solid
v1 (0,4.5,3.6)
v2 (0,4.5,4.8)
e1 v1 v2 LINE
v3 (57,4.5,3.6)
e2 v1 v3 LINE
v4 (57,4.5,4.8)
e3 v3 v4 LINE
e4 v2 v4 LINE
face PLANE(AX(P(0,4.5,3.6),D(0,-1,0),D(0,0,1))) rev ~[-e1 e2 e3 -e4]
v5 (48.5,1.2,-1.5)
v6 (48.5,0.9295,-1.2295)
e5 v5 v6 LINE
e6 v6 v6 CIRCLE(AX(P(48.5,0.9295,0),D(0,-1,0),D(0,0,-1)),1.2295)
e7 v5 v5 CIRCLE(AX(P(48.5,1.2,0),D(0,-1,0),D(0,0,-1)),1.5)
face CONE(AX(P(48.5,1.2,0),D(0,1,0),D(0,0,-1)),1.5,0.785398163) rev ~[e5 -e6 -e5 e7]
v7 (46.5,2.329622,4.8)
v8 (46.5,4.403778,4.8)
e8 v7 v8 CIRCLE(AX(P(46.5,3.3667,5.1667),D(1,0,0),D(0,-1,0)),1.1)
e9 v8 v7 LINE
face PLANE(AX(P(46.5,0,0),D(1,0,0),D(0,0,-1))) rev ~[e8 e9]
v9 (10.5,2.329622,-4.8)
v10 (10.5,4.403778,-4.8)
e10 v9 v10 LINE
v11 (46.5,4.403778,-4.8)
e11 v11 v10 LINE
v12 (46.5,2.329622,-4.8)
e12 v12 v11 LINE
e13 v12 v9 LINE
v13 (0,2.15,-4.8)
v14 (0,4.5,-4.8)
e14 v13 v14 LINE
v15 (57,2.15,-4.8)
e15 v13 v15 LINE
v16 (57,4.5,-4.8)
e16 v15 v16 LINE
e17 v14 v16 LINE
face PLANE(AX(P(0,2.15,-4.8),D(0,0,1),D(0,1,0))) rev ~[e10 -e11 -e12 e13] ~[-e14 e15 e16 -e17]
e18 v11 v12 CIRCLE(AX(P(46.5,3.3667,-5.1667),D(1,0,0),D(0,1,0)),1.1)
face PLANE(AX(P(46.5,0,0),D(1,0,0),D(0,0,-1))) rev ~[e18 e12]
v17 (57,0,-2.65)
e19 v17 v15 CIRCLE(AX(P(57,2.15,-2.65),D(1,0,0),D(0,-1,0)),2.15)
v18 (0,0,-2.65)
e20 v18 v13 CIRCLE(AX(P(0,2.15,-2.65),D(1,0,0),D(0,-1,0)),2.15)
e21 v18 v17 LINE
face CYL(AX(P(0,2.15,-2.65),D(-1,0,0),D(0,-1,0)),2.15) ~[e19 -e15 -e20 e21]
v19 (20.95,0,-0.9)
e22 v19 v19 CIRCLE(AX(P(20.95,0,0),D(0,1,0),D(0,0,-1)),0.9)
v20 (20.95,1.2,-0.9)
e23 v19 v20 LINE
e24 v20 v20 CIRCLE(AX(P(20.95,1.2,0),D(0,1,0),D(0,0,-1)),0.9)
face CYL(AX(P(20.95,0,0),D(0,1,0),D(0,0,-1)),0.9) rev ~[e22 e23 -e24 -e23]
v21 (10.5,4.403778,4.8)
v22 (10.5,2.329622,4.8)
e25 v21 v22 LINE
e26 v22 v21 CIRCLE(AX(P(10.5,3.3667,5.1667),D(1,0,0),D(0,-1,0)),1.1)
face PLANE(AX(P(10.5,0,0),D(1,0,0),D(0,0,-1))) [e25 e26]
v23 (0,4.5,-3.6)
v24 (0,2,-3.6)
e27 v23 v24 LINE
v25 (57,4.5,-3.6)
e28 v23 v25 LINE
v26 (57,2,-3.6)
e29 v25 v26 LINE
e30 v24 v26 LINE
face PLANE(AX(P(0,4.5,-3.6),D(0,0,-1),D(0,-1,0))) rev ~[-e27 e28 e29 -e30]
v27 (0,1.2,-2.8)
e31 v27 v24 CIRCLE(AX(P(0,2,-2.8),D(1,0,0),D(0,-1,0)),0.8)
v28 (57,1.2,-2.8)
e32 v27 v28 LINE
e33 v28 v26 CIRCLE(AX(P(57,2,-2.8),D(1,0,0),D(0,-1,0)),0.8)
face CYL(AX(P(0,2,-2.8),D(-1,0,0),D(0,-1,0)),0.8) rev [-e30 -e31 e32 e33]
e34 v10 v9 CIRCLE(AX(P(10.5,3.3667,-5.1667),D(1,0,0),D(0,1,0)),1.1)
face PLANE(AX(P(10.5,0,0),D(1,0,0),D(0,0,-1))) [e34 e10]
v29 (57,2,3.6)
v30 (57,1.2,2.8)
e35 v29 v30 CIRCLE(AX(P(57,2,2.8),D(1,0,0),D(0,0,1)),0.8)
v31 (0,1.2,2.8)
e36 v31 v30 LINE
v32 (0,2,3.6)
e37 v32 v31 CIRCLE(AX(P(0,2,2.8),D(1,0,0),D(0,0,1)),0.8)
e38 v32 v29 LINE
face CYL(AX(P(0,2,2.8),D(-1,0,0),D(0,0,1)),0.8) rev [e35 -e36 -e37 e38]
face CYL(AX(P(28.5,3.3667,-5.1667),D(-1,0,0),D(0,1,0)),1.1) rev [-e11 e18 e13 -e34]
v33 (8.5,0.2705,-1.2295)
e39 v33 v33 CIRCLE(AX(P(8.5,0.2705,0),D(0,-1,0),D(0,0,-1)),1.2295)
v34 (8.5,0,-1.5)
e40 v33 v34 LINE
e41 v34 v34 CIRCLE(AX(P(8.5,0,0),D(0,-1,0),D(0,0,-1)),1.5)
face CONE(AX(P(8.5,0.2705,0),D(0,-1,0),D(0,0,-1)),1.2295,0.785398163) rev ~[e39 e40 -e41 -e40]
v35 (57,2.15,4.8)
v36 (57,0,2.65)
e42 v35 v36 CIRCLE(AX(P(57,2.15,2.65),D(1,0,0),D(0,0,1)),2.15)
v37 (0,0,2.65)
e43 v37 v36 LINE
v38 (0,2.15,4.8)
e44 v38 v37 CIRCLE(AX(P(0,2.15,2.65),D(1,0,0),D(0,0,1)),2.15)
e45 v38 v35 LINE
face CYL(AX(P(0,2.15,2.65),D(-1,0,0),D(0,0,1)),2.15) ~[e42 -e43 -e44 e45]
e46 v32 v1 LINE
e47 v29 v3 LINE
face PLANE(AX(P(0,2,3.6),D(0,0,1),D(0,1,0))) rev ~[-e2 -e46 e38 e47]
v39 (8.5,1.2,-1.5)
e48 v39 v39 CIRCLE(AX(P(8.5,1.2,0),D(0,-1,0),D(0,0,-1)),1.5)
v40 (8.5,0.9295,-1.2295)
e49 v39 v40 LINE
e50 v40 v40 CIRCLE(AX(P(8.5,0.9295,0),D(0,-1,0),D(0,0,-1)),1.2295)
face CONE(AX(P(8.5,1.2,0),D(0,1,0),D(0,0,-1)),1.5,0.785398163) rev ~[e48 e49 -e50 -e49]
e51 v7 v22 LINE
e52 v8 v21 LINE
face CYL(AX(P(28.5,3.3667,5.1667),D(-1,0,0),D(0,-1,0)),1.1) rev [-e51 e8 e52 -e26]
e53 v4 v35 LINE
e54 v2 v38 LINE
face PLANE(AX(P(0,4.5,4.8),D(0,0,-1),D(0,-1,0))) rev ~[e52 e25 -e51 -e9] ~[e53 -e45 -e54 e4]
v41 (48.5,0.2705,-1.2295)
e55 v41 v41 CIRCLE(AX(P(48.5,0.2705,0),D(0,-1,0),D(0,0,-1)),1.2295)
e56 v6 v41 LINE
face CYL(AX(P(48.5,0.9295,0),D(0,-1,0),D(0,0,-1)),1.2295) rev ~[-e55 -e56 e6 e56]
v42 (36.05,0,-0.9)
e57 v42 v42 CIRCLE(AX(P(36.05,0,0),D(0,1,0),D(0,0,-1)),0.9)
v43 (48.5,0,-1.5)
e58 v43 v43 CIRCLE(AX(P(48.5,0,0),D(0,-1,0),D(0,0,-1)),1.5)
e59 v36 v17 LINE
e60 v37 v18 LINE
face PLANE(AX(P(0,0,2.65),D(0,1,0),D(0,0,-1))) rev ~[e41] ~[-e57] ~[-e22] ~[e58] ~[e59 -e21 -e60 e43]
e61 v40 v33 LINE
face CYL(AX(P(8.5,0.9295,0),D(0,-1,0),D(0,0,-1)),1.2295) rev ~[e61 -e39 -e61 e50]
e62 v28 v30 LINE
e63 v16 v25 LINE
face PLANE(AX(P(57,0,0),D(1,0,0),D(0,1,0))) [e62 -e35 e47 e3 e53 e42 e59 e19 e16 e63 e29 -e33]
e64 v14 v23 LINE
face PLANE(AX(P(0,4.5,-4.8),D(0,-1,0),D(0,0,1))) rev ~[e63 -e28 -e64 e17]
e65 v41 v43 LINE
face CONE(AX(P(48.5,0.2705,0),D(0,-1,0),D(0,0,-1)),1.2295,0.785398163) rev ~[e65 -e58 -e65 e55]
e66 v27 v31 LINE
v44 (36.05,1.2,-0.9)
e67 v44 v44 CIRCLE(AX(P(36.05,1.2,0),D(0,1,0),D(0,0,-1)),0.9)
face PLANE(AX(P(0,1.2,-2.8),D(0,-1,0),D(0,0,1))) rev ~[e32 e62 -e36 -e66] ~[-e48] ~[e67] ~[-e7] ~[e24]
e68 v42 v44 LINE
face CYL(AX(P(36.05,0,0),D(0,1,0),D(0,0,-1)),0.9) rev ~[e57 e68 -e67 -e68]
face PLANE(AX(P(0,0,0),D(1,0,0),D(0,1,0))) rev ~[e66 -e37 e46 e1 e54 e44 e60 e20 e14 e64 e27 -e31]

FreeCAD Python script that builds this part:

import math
import FreeCAD as App
import Part
import Sketcher
from FreeCAD import Vector


def add_polygon(sketch, points):
    """Adds a closed chain of lines whose ends are joined by coincident constraints."""
    first, n = sketch.GeometryCount, len(points)
    for a, b in zip(points, points[1:] + points[:1]):
        sketch.addGeometry(Part.LineSegment(App.Vector(*a, 0), App.Vector(*b, 0)), False)
    for i in range(n):
        sketch.addConstraint(Sketcher.Constraint("Coincident", first + i, 2, first + (i + 1) % n, 1))

doc = App.newDocument("Part")
params = doc.addObject("Spreadsheet::Sheet", "Params")
for row, (alias, value) in enumerate([
    ("sketch1_radius", "0.8 mm"),
    ("sketch1_radius2", "2.15 mm"),
    ("sketch1_width", "2.5 mm"),
    ("sketch1_height", "1.2 mm"),
    ("sketch1_height2", "5.3 mm"),
    ("pad1_length", "57 mm"),
    ("sketch2_width", "1.2 mm"),
    ("sketch2_height", "1.5 mm"),
    ("groove_angle", "360 deg"),
    ("sketch3_width", "1.2 mm"),
    ("sketch3_height", "1.5 mm"),
    ("groove2_angle", "360 deg"),
    ("sketch4_diameter", "1.8 mm"),
    ("hole_diameter", "1.8 mm"),
    ("hole_depth", "1.2 mm"),
    ("sketch5_diameter", "1.8 mm"),
    ("hole2_diameter", "1.8 mm"),
    ("hole2_depth", "1.2 mm"),
    ("sketch6_radius", "1.1 mm"),
    ("pocket1_length", "36 mm"),
    ("sketch7_radius", "1.1 mm"),
    ("pocket2_length", "36 mm"),
], start=1):
    params.set(f"A{row}", alias)
    params.set(f"B{row}", "=" + value)
    params.setAlias(f"B{row}", alias)

body = doc.addObject("PartDesign::Body", "Body")

# Sketch on YZ plane
sketch1 = doc.addObject("Sketcher::SketchObject", "Sketch")
body.addObject(sketch1)
sketch1.AttachmentSupport = (doc.YZ_Plane, [""])
sketch1.MapMode = "FlatFace"
sketch1.addGeometry([
    Part.LineSegment(Vector(4.5, 3.6, 0), Vector(4.5, 4.8, 0)),  # 0
    Part.LineSegment(Vector(4.5, 4.8, 0), Vector(2.15, 4.8, 0)),  # 1
    Part.ArcOfCircle(Part.Circle(Vector(2.15, 2.65, 0), Vector(0, 0, 1), 2.15), math.radians(90), math.radians(180)),  # 2
    Part.LineSegment(Vector(0, 2.65, 0), Vector(0, -2.65, 0)),  # 3
    Part.ArcOfCircle(Part.Circle(Vector(2.15, -2.65, 0), Vector(0, 0, 1), 2.15), math.radians(180), math.radians(270)),  # 4
    Part.LineSegment(Vector(2.15, -4.8, 0), Vector(4.5, -4.8, 0)),  # 5
    Part.LineSegment(Vector(4.5, -4.8, 0), Vector(4.5, -3.6, 0)),  # 6
    Part.LineSegment(Vector(4.5, -3.6, 0), Vector(2, -3.6, 0)),  # 7
    Part.ArcOfCircle(Part.Circle(Vector(2, -2.8, 0), Vector(0, 0, 1), 0.8), math.radians(180), math.radians(270)),  # 8
    Part.LineSegment(Vector(1.2, -2.8, 0), Vector(1.2, 2.8, 0)),  # 9
    Part.ArcOfCircle(Part.Circle(Vector(2, 2.8, 0), Vector(0, 0, 1), 0.8), math.radians(90), math.radians(180)),  # 10
    Part.LineSegment(Vector(2, 3.6, 0), Vector(4.5, 3.6, 0)),  # 11
], False)
sketch1.addConstraint([
    Sketcher.Constraint("Coincident", 0, 2, 1, 1),
    Sketcher.Constraint("Tangent", 1, 2, 2, 1),
    Sketcher.Constraint("Tangent", 2, 2, 3, 1),
    Sketcher.Constraint("Tangent", 3, 2, 4, 1),
    Sketcher.Constraint("Tangent", 4, 2, 5, 1),
    Sketcher.Constraint("Coincident", 5, 2, 6, 1),
    Sketcher.Constraint("Coincident", 6, 2, 7, 1),
    Sketcher.Constraint("Tangent", 7, 2, 8, 2),
    Sketcher.Constraint("Tangent", 8, 1, 9, 1),
    Sketcher.Constraint("Tangent", 9, 2, 10, 2),
    Sketcher.Constraint("Tangent", 10, 1, 11, 1),
    Sketcher.Constraint("Coincident", 11, 2, 0, 1),
    Sketcher.Constraint("Vertical", 0),
    Sketcher.Constraint("Horizontal", 1),
    Sketcher.Constraint("Vertical", 3),
    Sketcher.Constraint("Horizontal", 5),
    Sketcher.Constraint("Vertical", 6),
    Sketcher.Constraint("Horizontal", 7),
    Sketcher.Constraint("Vertical", 9),
    Sketcher.Constraint("Horizontal", 11),
    Sketcher.Constraint("Equal", 2, 4),
    Sketcher.Constraint("Equal", 8, 10),
    Sketcher.Constraint("Symmetric", 2, 2, 3, 2, -1, 1),
    Sketcher.Constraint("Symmetric", 6, 2, 11, 2, -1),
    Sketcher.Constraint("Radius", 8, 0.8),
    Sketcher.Constraint("Radius", 2, 2.15),
    Sketcher.Constraint("DistanceX", 7, 2, 7, 1, 2.5),
    Sketcher.Constraint("DistanceY", 0, 1, 0, 2, 1.2),
    Sketcher.Constraint("DistanceY", 3, 2, 3, 1, 5.3),
    Sketcher.Constraint("DistanceX", -1, 1, 8, 3, 2.0),
])
sketch1.setExpression("Constraints[24]", "Params.sketch1_radius")
sketch1.setExpression("Constraints[25]", "Params.sketch1_radius2")
sketch1.setExpression("Constraints[26]", "Params.sketch1_width")
sketch1.setExpression("Constraints[27]", "Params.sketch1_height")
sketch1.setExpression("Constraints[28]", "Params.sketch1_height2")
pad1 = doc.addObject("PartDesign::Pad", "Pad")
body.addObject(pad1)
pad1.Profile = sketch1
pad1.setExpression("Length", "Params.pad1_length")

# Sketch on YZ plane
sketch2 = doc.addObject("Sketcher::SketchObject", "Sketch001")
body.addObject(sketch2)
sketch2.AttachmentSupport = (doc.YZ_Plane, [""])
sketch2.MapMode = "FlatFace"
sketch2.AttachmentOffset = App.Placement(Vector(0, 0, 8.5), App.Rotation())
add_polygon(sketch2, [(1.2, 0), (0, 0), (0, -1.5), (0.2705, -1.2295), (0.9295, -1.2295), (1.2, -1.5)])  # lines 0-5
sketch2.addConstraint([
    Sketcher.Constraint("Horizontal", 0),
    Sketcher.Constraint("Vertical", 1),
    Sketcher.Constraint("Horizontal", 3),
    Sketcher.Constraint("Vertical", 5),
    Sketcher.Constraint("Coincident", 0, 2, -1, 1),
    Sketcher.Constraint("Perpendicular", 2, 4),
    Sketcher.Constraint("Horizontal", 1, 2, 4, 2),
    Sketcher.Constraint("Equal", 2, 4),
    Sketcher.Constraint("DistanceX", 0, 2, 0, 1, 1.2),
    Sketcher.Constraint("DistanceY", 1, 2, 1, 1, 1.5),
    Sketcher.Constraint("DistanceX", 3, 1, 3, 2, 0.659),
])
sketch2.setExpression("Constraints[14]", "Params.sketch2_width")
sketch2.setExpression("Constraints[15]", "Params.sketch2_height")
groove = doc.addObject("PartDesign::Groove", "Groove")
body.addObject(groove)
groove.Profile = sketch2
groove.ReferenceAxis = (sketch2, ["H_Axis"])
groove.setExpression("Angle", "Params.groove_angle")

# Sketch on YZ plane
sketch3 = doc.addObject("Sketcher::SketchObject", "Sketch002")
body.addObject(sketch3)
sketch3.AttachmentSupport = (doc.YZ_Plane, [""])
sketch3.MapMode = "FlatFace"
sketch3.AttachmentOffset = App.Placement(Vector(0, 0, 48.5), App.Rotation())
add_polygon(sketch3, [(1.2, 0), (0, 0), (0, -1.5), (0.2705, -1.2295), (0.9295, -1.2295), (1.2, -1.5)])  # lines 0-5
sketch3.addConstraint([
    Sketcher.Constraint("Horizontal", 0),
    Sketcher.Constraint("Vertical", 1),
    Sketcher.Constraint("Horizontal", 3),
    Sketcher.Constraint("Vertical", 5),
    Sketcher.Constraint("Coincident", 0, 2, -1, 1),
    Sketcher.Constraint("Perpendicular", 2, 4),
    Sketcher.Constraint("Horizontal", 1, 2, 4, 2),
    Sketcher.Constraint("Equal", 2, 4),
    Sketcher.Constraint("DistanceX", 0, 2, 0, 1, 1.2),
    Sketcher.Constraint("DistanceY", 1, 2, 1, 1, 1.5),
    Sketcher.Constraint("DistanceX", 3, 1, 3, 2, 0.659),
])
sketch3.setExpression("Constraints[14]", "Params.sketch3_width")
sketch3.setExpression("Constraints[15]", "Params.sketch3_height")
groove2 = doc.addObject("PartDesign::Groove", "Groove001")
body.addObject(groove2)
groove2.Profile = sketch3
groove2.ReferenceAxis = (sketch3, ["H_Axis"])
groove2.setExpression("Angle", "Params.groove2_angle")

# Sketch on XZ plane
sketch4 = doc.addObject("Sketcher::SketchObject", "Sketch003")
body.addObject(sketch4)
sketch4.AttachmentSupport = (doc.XZ_Plane, [""])
sketch4.MapMode = "FlatFace"
sketch4.addGeometry(Part.Circle(Vector(20.95, 0, 0), Vector(0, 0, 1), 0.9), False)
sketch4.addConstraint([
    Sketcher.Constraint("PointOnObject", 0, 3, -1),
    Sketcher.Constraint("Diameter", 0, 1.8),
    Sketcher.Constraint("DistanceX", -1, 1, 0, 3, 20.95),
])
sketch4.setExpression("Constraints[1]", "Params.sketch4_diameter")
doc.recompute()
hole = doc.addObject("PartDesign::Hole", "Hole")
body.addObject(hole)
hole.Profile = sketch4
hole.ThreadType = "None"
hole.setExpression("Diameter", "Params.hole_diameter")
hole.DepthType = "Dimension"
hole.setExpression("Depth", "Params.hole_depth")
hole.DrillPoint = "Flat"

# Sketch on XZ plane
sketch5 = doc.addObject("Sketcher::SketchObject", "Sketch004")
body.addObject(sketch5)
sketch5.AttachmentSupport = (doc.XZ_Plane, [""])
sketch5.MapMode = "FlatFace"
sketch5.addGeometry(Part.Circle(Vector(36.05, 0, 0), Vector(0, 0, 1), 0.9), False)
sketch5.addConstraint([
    Sketcher.Constraint("PointOnObject", 0, 3, -1),
    Sketcher.Constraint("Diameter", 0, 1.8),
    Sketcher.Constraint("DistanceX", -1, 1, 0, 3, 36.05),
])
sketch5.setExpression("Constraints[1]", "Params.sketch5_diameter")
doc.recompute()
hole2 = doc.addObject("PartDesign::Hole", "Hole001")
body.addObject(hole2)
hole2.Profile = sketch5
hole2.ThreadType = "None"
hole2.setExpression("Diameter", "Params.hole2_diameter")
hole2.DepthType = "Dimension"
hole2.setExpression("Depth", "Params.hole2_depth")
hole2.DrillPoint = "Flat"

# Sketch on YZ plane
sketch6 = doc.addObject("Sketcher::SketchObject", "Sketch005")
body.addObject(sketch6)
sketch6.AttachmentSupport = (doc.YZ_Plane, [""])
sketch6.MapMode = "FlatFace"
sketch6.AttachmentOffset = App.Placement(Vector(0, 0, 28.5), App.Rotation())
sketch6.addGeometry([
    Part.LineSegment(Vector(2.2667, -5.1667, 0), Vector(4.4667, -5.1667, 0)),
    Part.ArcOfCircle(Part.Circle(Vector(3.3667, -5.1667, 0), Vector(0, 0, 1), 1.1), math.radians(0), math.radians(180)),
], False)
sketch6.addConstraint([
    Sketcher.Constraint("Coincident", 0, 1, 1, 2),
    Sketcher.Constraint("Coincident", 1, 1, 0, 2),
    Sketcher.Constraint("Horizontal", 0),
    Sketcher.Constraint("Horizontal", 1, 3, 0, 1),
    Sketcher.Constraint("Radius", 1, 1.1),
    Sketcher.Constraint("DistanceX", -1, 1, 1, 3, 3.3667),
    Sketcher.Constraint("DistanceY", 1, 3, -1, 1, 5.1667),
])
sketch6.setExpression("Constraints[4]", "Params.sketch6_radius")
pocket1 = doc.addObject("PartDesign::Pocket", "Pocket")
body.addObject(pocket1)
pocket1.Profile = sketch6
pocket1.setExpression("Length", "Params.pocket1_length")
pocket1.Midplane = True

# Sketch on YZ plane
sketch7 = doc.addObject("Sketcher::SketchObject", "Sketch006")
body.addObject(sketch7)
sketch7.AttachmentSupport = (doc.YZ_Plane, [""])
sketch7.MapMode = "FlatFace"
sketch7.AttachmentOffset = App.Placement(Vector(0, 0, 28.5), App.Rotation())
sketch7.addGeometry([
    Part.LineSegment(Vector(4.4667, 5.1667, 0), Vector(2.2667, 5.1667, 0)),
    Part.ArcOfCircle(Part.Circle(Vector(3.3667, 5.1667, 0), Vector(0, 0, 1), 1.1), math.radians(180), math.radians(360)),
], False)
sketch7.addConstraint([
    Sketcher.Constraint("Coincident", 0, 1, 1, 2),
    Sketcher.Constraint("Coincident", 1, 1, 0, 2),
    Sketcher.Constraint("Horizontal", 0),
    Sketcher.Constraint("Horizontal", 1, 3, 0, 1),
    Sketcher.Constraint("Radius", 1, 1.1),
    Sketcher.Constraint("DistanceX", -1, 1, 1, 3, 3.3667),
    Sketcher.Constraint("DistanceY", -1, 1, 1, 3, 5.1667),
])
sketch7.setExpression("Constraints[4]", "Params.sketch7_radius")
pocket2 = doc.addObject("PartDesign::Pocket", "Pocket001")
body.addObject(pocket2)
pocket2.Profile = sketch7
pocket2.setExpression("Length", "Params.pocket2_length")
pocket2.Midplane = True

doc.recompute()
